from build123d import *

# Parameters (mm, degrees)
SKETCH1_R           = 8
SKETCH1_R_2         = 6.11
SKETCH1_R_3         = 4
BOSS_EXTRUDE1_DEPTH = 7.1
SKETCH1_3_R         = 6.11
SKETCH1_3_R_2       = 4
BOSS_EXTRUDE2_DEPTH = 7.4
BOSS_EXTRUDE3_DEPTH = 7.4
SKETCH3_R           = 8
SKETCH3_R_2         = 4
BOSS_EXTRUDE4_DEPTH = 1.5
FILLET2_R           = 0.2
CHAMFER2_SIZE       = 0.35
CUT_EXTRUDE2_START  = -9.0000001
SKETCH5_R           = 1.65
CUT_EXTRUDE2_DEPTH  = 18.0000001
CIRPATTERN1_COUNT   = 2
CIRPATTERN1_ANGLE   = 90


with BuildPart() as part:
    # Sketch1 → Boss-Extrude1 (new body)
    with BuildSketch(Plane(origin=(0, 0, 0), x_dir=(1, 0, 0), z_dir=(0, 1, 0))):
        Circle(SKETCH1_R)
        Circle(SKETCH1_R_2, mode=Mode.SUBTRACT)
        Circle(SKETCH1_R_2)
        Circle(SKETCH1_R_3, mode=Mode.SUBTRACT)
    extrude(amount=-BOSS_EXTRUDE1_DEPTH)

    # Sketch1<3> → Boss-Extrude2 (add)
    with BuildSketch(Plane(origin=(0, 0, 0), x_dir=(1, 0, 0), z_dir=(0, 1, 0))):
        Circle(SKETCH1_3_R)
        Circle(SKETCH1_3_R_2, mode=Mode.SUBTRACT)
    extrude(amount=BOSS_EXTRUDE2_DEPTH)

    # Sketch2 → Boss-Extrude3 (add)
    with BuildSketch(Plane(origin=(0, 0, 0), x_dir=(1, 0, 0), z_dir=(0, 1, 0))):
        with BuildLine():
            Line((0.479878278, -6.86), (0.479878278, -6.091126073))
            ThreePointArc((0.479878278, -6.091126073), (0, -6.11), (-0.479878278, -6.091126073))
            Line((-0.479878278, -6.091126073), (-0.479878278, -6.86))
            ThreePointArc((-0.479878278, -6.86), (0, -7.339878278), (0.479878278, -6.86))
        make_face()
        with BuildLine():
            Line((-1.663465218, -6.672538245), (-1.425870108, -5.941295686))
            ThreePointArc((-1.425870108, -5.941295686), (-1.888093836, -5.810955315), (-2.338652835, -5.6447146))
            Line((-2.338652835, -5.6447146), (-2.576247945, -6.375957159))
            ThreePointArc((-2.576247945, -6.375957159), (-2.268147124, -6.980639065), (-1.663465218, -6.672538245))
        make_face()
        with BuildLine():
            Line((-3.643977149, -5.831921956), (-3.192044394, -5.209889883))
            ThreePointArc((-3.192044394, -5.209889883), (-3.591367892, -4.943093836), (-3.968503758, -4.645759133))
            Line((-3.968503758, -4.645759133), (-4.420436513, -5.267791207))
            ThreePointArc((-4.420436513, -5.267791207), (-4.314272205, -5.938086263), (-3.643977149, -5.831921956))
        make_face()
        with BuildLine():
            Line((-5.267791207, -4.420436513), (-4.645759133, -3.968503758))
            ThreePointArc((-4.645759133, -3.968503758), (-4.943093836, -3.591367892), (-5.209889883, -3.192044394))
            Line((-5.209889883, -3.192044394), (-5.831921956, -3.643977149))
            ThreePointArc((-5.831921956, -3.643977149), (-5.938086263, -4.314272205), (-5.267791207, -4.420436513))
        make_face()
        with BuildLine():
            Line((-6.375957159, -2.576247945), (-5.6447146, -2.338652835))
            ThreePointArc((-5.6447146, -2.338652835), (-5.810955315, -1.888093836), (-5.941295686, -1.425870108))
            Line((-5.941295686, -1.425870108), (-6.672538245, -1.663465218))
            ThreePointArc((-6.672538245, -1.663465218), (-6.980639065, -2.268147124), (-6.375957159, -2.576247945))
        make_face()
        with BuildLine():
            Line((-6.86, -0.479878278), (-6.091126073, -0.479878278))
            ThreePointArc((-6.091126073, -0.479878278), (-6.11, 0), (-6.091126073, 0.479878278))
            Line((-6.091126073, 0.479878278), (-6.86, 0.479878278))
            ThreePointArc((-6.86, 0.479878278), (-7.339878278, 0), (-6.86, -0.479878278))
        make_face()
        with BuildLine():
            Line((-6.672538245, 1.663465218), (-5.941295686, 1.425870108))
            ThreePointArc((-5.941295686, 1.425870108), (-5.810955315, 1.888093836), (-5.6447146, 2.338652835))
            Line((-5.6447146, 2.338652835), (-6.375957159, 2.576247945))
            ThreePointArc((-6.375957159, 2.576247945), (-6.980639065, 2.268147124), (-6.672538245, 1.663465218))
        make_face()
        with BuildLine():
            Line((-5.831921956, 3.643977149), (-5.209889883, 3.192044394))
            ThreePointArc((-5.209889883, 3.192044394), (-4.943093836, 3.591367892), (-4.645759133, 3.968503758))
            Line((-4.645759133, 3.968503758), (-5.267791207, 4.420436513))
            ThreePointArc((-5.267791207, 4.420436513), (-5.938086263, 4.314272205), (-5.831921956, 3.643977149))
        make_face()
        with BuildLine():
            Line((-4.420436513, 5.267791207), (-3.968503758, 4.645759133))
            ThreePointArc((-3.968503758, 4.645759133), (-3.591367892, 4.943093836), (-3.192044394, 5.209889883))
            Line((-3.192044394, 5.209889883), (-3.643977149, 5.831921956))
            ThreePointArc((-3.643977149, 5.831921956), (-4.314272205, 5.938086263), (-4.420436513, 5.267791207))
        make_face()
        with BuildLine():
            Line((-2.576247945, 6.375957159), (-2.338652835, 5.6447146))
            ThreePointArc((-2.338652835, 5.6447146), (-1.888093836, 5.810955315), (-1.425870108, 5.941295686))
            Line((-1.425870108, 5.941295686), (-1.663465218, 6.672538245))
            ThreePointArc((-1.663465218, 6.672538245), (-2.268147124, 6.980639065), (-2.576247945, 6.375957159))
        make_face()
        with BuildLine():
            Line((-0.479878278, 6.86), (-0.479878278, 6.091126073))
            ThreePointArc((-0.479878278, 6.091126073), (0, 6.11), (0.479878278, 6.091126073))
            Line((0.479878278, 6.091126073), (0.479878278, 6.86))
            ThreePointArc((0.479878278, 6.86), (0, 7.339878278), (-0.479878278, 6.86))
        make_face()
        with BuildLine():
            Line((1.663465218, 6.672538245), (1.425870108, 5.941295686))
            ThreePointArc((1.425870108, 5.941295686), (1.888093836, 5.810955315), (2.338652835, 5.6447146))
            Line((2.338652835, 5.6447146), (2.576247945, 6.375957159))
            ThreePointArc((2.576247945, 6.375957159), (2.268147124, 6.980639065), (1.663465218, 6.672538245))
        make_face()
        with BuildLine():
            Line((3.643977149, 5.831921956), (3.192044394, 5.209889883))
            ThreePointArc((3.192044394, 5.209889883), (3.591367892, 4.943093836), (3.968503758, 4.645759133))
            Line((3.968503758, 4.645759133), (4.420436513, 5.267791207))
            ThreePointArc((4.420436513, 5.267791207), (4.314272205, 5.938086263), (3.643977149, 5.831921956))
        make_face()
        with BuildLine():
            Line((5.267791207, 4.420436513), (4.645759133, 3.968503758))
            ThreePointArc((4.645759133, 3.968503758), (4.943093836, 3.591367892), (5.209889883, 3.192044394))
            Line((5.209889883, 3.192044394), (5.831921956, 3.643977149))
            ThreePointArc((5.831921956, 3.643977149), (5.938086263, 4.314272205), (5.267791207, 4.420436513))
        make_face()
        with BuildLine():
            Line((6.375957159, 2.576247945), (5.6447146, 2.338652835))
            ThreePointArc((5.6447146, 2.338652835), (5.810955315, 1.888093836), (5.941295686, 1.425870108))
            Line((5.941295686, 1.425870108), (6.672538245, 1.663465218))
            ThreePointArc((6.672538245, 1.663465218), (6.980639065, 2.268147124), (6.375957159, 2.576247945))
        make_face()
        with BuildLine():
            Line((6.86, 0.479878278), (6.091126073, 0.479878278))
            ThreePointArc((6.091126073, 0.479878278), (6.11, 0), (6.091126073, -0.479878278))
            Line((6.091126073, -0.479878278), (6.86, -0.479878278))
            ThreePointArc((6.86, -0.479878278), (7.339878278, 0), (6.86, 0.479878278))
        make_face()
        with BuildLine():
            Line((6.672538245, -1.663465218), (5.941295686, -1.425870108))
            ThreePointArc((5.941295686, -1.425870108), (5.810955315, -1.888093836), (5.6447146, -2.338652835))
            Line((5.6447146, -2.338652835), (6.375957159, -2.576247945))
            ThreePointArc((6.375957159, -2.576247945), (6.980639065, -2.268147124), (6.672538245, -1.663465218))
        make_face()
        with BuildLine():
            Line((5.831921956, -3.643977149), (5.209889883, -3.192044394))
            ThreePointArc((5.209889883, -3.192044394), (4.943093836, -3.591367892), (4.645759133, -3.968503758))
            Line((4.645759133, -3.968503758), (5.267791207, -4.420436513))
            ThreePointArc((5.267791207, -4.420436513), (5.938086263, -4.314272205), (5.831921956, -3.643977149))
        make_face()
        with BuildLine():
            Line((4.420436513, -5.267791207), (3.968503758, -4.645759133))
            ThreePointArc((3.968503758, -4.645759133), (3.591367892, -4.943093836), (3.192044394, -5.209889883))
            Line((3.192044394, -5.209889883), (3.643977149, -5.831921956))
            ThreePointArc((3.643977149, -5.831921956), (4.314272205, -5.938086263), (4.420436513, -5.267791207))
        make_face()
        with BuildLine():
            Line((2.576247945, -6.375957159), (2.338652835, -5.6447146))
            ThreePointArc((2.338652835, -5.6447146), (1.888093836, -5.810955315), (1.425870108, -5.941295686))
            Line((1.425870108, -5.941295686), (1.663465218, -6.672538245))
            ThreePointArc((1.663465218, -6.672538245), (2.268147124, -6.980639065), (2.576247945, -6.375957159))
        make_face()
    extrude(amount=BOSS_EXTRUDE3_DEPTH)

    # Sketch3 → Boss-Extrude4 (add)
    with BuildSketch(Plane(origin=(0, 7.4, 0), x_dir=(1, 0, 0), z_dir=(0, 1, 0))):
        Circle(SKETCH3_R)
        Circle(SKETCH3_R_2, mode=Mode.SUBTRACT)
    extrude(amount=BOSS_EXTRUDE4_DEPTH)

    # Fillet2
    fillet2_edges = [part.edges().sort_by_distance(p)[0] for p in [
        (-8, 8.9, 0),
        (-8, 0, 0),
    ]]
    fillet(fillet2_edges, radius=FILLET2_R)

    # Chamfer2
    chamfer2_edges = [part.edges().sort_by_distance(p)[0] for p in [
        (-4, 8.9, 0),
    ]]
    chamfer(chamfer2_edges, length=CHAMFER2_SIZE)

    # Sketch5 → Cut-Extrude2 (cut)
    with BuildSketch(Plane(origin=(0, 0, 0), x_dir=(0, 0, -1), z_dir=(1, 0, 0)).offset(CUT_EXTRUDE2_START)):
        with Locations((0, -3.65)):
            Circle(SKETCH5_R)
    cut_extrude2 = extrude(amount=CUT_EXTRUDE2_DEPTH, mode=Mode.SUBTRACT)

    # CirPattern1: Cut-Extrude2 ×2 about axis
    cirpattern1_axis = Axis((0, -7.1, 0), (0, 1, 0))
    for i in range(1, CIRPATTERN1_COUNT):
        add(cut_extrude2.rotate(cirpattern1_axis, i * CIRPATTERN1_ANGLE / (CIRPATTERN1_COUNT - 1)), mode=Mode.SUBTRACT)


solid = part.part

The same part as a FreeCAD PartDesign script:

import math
import FreeCAD as App
import Part
import Sketcher

V = App.Vector
Q = App.Units.Quantity


def edges_at(feature, points):
    """Names of the edges that pass closest to the given points."""
    edges = feature.Shape.Edges
    near = lambda p: min(range(len(edges)), key=lambda i: edges[i].distToShape(Part.Vertex(*p))[0])
    return sorted({f"Edge{near(p) + 1}" for p in points})

doc = App.newDocument("Part")
params = doc.addObject("Spreadsheet::Sheet", "Params")
for row, (alias, value) in enumerate([
    ("sketch1_diameter", "16 mm"),
    ("sketch1_diameter2", "8 mm"),
    ("pad1_length", "7.1 mm"),
    ("sketch2_diameter", "8 mm"),
    ("sketch2_diameter2", "12.22 mm"),
    ("pad2_length", "7.4 mm"),
    ("sketch3_radius", "6.11 mm"),
    ("pad3_length", "7.4 mm"),
    ("sketch4_diameter", "16 mm"),
    ("sketch4_diameter2", "8 mm"),
    ("pad4_length", "1.5 mm"),
    ("fillet_radius", "0.2 mm"),
    ("chamfer_size", "0.35 mm"),
    ("sketch5_diameter", "3.3 mm"),
    ("pocket1_length", "18 mm"),
], start=1):
    params.set(f"A{row}", alias)
    params.set(f"B{row}", "=" + value)
    params.setAlias(f"B{row}", alias)

body = doc.addObject("PartDesign::Body", "Body")

sketch1 = body.newObject("Sketcher::SketchObject", "Sketch")
sketch1.AttachmentSupport = (doc.getObject("XZ_Plane"), [""])
sketch1.MapMode = "FlatFace"
sketch1.addGeometry([
    Part.Circle(V(0, 0, 0), V(0, 0, 1), 8),
    Part.Circle(V(0, 0, 0), V(0, 0, 1), 4),
], False)
sketch1.addConstraint([
    Sketcher.Constraint("Coincident", 0, 3, -1, 1),
    Sketcher.Constraint("Coincident", 1, 3, -1, 1),
    Sketcher.Constraint("Diameter", 0, 16.0),
    Sketcher.Constraint("Diameter", 1, 8.0),
])
sketch1.setExpression("Constraints[2]", "Params.sketch1_diameter")
sketch1.setExpression("Constraints[3]", "Params.sketch1_diameter2")
pad1 = body.newObject("PartDesign::Pad", "Pad")
pad1.Profile = sketch1
pad1.setExpression("Length", "Params.pad1_length")

sketch2 = body.newObject("Sketcher::SketchObject", "Sketch001")
sketch2.AttachmentSupport = (doc.getObject("XZ_Plane"), [""])
sketch2.MapMode = "FlatFace"
sketch2.addGeometry([
    Part.Circle(V(0, 0, 0), V(0, 0, 1), 6.1),
    Part.Circle(V(0, 0, 0), V(0, 0, 1), 4),
], False)
sketch2.addConstraint([
    Sketcher.Constraint("Coincident", 0, 3, -1, 1),
    Sketcher.Constraint("Coincident", 1, 3, -1, 1),
    Sketcher.Constraint("Diameter", 1, 8.0),
    Sketcher.Constraint("Diameter", 0, 12.22),
])
sketch2.setExpression("Constraints[2]", "Params.sketch2_diameter")
sketch2.setExpression("Constraints[3]", "Params.sketch2_diameter2")
pad2 = body.newObject("PartDesign::Pad", "Pad001")
pad2.Profile = sketch2
pad2.setExpression("Length", "Params.pad2_length")
pad2.Reversed = True

sketch3 = body.newObject("Sketcher::SketchObject", "Sketch002")
sketch3.AttachmentSupport = (doc.getObject("XZ_Plane"), [""])
sketch3.MapMode = "FlatFace"
sketch3.addGeometry([
    Part.LineSegment(V(0.48, 6.86, 0), V(0.48, 6.09, 0)),
    Part.ArcOfCircle(Part.Circle(V(0, 0, 0), V(0, 0, 1), 6.11), math.radians(85.5), math.radians(94.5)),
    Part.LineSegment(V(-0.48, 6.09, 0), V(-0.48, 6.86, 0)),
    Part.ArcOfCircle(Part.Circle(V(0, 6.86, 0), V(0, 0, 1), 0.48), math.radians(0), math.radians(180)),
    Part.LineSegment(V(-1.66, 6.67, 0), V(-1.43, 5.94, 0)),
    Part.ArcOfCircle(Part.Circle(V(0, 0, 0), V(0, 0, 1), 6.11), math.radians(103.5), math.radians(112.5)),
    Part.LineSegment(V(-2.34, 5.64, 0), V(-2.58, 6.38, 0)),
    Part.ArcOfCircle(Part.Circle(V(-2.12, 6.52, 0), V(0, 0, 1), 0.48), math.radians(18), math.radians(198)),
    Part.LineSegment(V(-3.64, 5.83, 0), V(-3.19, 5.21, 0)),
    Part.ArcOfCircle(Part.Circle(V(0, 0, 0), V(0, 0, 1), 6.11), math.radians(121.5), math.radians(130.5)),
    Part.LineSegment(V(-3.97, 4.65, 0), V(-4.42, 5.27, 0)),
    Part.ArcOfCircle(Part.Circle(V(-4.03, 5.55, 0), V(0, 0, 1), 0.48), math.radians(36), math.radians(216)),
    Part.LineSegment(V(-5.27, 4.42, 0), V(-4.65, 3.97, 0)),
    Part.ArcOfCircle(Part.Circle(V(0, 0, 0), V(0, 0, 1), 6.11), math.radians(139.5), math.radians(148.5)),
    Part.LineSegment(V(-5.21, 3.19, 0), V(-5.83, 3.64, 0)),
    Part.ArcOfCircle(Part.Circle(V(-5.55, 4.03, 0), V(0, 0, 1), 0.48), math.radians(54), math.radians(234)),
    Part.LineSegment(V(-6.38, 2.58, 0), V(-5.64, 2.34, 0)),
    Part.ArcOfCircle(Part.Circle(V(0, 0, 0), V(0, 0, 1), 6.11), math.radians(157.5), math.radians(166.5)),
    Part.LineSegment(V(-5.94, 1.43, 0), V(-6.67, 1.66, 0)),
    Part.ArcOfCircle(Part.Circle(V(-6.52, 2.12, 0), V(0, 0, 1), 0.48), math.radians(72), math.radians(252)),
    Part.LineSegment(V(-6.86, 0.48, 0), V(-6.09, 0.48, 0)),
    Part.ArcOfCircle(Part.Circle(V(0, 0, 0), V(0, 0, 1), 6.11), math.radians(175.5), math.radians(184.5)),
    Part.LineSegment(V(-6.09, -0.48, 0), V(-6.86, -0.48, 0)),
    Part.ArcOfCircle(Part.Circle(V(-6.86, 0, 0), V(0, 0, 1), 0.48), math.radians(90), math.radians(270)),
    Part.LineSegment(V(-6.67, -1.66, 0), V(-5.94, -1.43, 0)),
    Part.ArcOfCircle(Part.Circle(V(0, 0, 0), V(0, 0, 1), 6.11), math.radians(-166.5), math.radians(-157.5)),
    Part.LineSegment(V(-5.64, -2.34, 0), V(-6.38, -2.58, 0)),
    Part.ArcOfCircle(Part.Circle(V(-6.52, -2.12, 0), V(0, 0, 1), 0.48), math.radians(108), math.radians(288)),
    Part.LineSegment(V(-5.83, -3.64, 0), V(-5.21, -3.19, 0)),
    Part.ArcOfCircle(Part.Circle(V(0, 0, 0), V(0, 0, 1), 6.11), math.radians(-148.5), math.radians(-139.5)),
    Part.LineSegment(V(-4.65, -3.97, 0), V(-5.27, -4.42, 0)),
    Part.ArcOfCircle(Part.Circle(V(-5.55, -4.03, 0), V(0, 0, 1), 0.48), math.radians(126), math.radians(306)),
    Part.LineSegment(V(-4.42, -5.27, 0), V(-3.97, -4.65, 0)),
    Part.ArcOfCircle(Part.Circle(V(0, 0, 0), V(0, 0, 1), 6.11), math.radians(-130.5), math.radians(-121.5)),
    Part.LineSegment(V(-3.19, -5.21, 0), V(-3.64, -5.83, 0)),
    Part.ArcOfCircle(Part.Circle(V(-4.03, -5.55, 0), V(0, 0, 1), 0.48), math.radians(144), math.radians(324)),
    Part.LineSegment(V(-2.58, -6.38, 0), V(-2.34, -5.64, 0)),
    Part.ArcOfCircle(Part.Circle(V(0, 0, 0), V(0, 0, 1), 6.11), math.radians(-112.5), math.radians(-103.5)),
    Part.LineSegment(V(-1.43, -5.94, 0), V(-1.66, -6.67, 0)),
    Part.ArcOfCircle(Part.Circle(V(-2.12, -6.52, 0), V(0, 0, 1), 0.48), math.radians(162), math.radians(342)),
    Part.LineSegment(V(-0.48, -6.86, 0), V(-0.48, -6.09, 0)),
    Part.ArcOfCircle(Part.Circle(V(0, 0, 0), V(0, 0, 1), 6.11), math.radians(-94.5), math.radians(-85.5)),
    Part.LineSegment(V(0.48, -6.09, 0), V(0.48, -6.86, 0)),
    Part.ArcOfCircle(Part.Circle(V(0, -6.86, 0), V(0, 0, 1), 0.48), math.radians(180), math.radians(360)),
    Part.LineSegment(V(1.66, -6.67, 0), V(1.43, -5.94, 0)),
    Part.ArcOfCircle(Part.Circle(V(0, 0, 0), V(0, 0, 1), 6.11), math.radians(-76.5), math.radians(-67.5)),
    Part.LineSegment(V(2.34, -5.64, 0), V(2.58, -6.38, 0)),
    Part.ArcOfCircle(Part.Circle(V(2.12, -6.52, 0), V(0, 0, 1), 0.48), math.radians(-162), math.radians(18)),
    Part.LineSegment(V(3.64, -5.83, 0), V(3.19, -5.21, 0)),
    Part.ArcOfCircle(Part.Circle(V(0, 0, 0), V(0, 0, 1), 6.11), math.radians(-58.5), math.radians(-49.5)),
    Part.LineSegment(V(3.97, -4.65, 0), V(4.42, -5.27, 0)),
    Part.ArcOfCircle(Part.Circle(V(4.03, -5.55, 0), V(0, 0, 1), 0.48), math.radians(-144), math.radians(36)),
    Part.LineSegment(V(5.27, -4.42, 0), V(4.65, -3.97, 0)),
    Part.ArcOfCircle(Part.Circle(V(0, 0, 0), V(0, 0, 1), 6.11), math.radians(-40.5), math.radians(-31.5)),
    Part.LineSegment(V(5.21, -3.19, 0), V(5.83, -3.64, 0)),
    Part.ArcOfCircle(Part.Circle(V(5.55, -4.03, 0), V(0, 0, 1), 0.48), math.radians(-126), math.radians(54)),
    Part.LineSegment(V(6.38, -2.58, 0), V(5.64, -2.34, 0)),
    Part.ArcOfCircle(Part.Circle(V(0, 0, 0), V(0, 0, 1), 6.11), math.radians(-22.5), math.radians(-13.5)),
    Part.LineSegment(V(5.94, -1.43, 0), V(6.67, -1.66, 0)),
    Part.ArcOfCircle(Part.Circle(V(6.52, -2.12, 0), V(0, 0, 1), 0.48), math.radians(-108), math.radians(72)),
    Part.LineSegment(V(6.86, -0.48, 0), V(6.09, -0.48, 0)),
    Part.ArcOfCircle(Part.Circle(V(0, 0, 0), V(0, 0, 1), 6.11), math.radians(-4.5), math.radians(4.5)),
    Part.LineSegment(V(6.09, 0.48, 0), V(6.86, 0.48, 0)),
    Part.ArcOfCircle(Part.Circle(V(6.86, 0, 0), V(0, 0, 1), 0.48), math.radians(-90), math.radians(90)),
    Part.LineSegment(V(6.67, 1.66, 0), V(5.94, 1.43, 0)),
    Part.ArcOfCircle(Part.Circle(V(0, 0, 0), V(0, 0, 1), 6.11), math.radians(13.5), math.radians(22.5)),
    Part.LineSegment(V(5.64, 2.34, 0), V(6.38, 2.58, 0)),
    Part.ArcOfCircle(Part.Circle(V(6.52, 2.12, 0), V(0, 0, 1), 0.48), math.radians(-72), math.radians(108)),
    Part.LineSegment(V(5.83, 3.64, 0), V(5.21, 3.19, 0)),
    Part.ArcOfCircle(Part.Circle(V(0, 0, 0), V(0, 0, 1), 6.11), math.radians(31.5), math.radians(40.5)),
    Part.LineSegment(V(4.65, 3.97, 0), V(5.27, 4.42, 0)),
    Part.ArcOfCircle(Part.Circle(V(5.55, 4.03, 0), V(0, 0, 1), 0.48), math.radians(-54), math.radians(126)),
    Part.LineSegment(V(4.42, 5.27, 0), V(3.97, 4.65, 0)),
    Part.ArcOfCircle(Part.Circle(V(0, 0, 0), V(0, 0, 1), 6.11), math.radians(49.5), math.radians(58.5)),
    Part.LineSegment(V(3.19, 5.21, 0), V(3.64, 5.83, 0)),
    Part.ArcOfCircle(Part.Circle(V(4.03, 5.55, 0), V(0, 0, 1), 0.48), math.radians(-36), math.radians(144)),
    Part.LineSegment(V(2.58, 6.38, 0), V(2.34, 5.64, 0)),
    Part.ArcOfCircle(Part.Circle(V(0, 0, 0), V(0, 0, 1), 6.11), math.radians(67.5), math.radians(76.5)),
    Part.LineSegment(V(1.43, 5.94, 0), V(1.66, 6.67, 0)),
    Part.ArcOfCircle(Part.Circle(V(2.12, 6.52, 0), V(0, 0, 1), 0.48), math.radians(-18), math.radians(162)),
], False)
sketch3.addConstraint([
    Sketcher.Constraint("Coincident", 0, 2, 1, 1),
    Sketcher.Constraint("Coincident", 1, 2, 2, 1),
    Sketcher.Constraint("Tangent", 2, 2, 3, 2),
    Sketcher.Constraint("Tangent", 3, 1, 0, 1),
    Sketcher.Constraint("Coincident", 4, 2, 5, 1),
    Sketcher.Constraint("Coincident", 5, 2, 6, 1),
    Sketcher.Constraint("Tangent", 6, 2, 7, 2),
    Sketcher.Constraint("Tangent", 7, 1, 4, 1),
    Sketcher.Constraint("Coincident", 8, 2, 9, 1),
    Sketcher.Constraint("Coincident", 9, 2, 10, 1),
    Sketcher.Constraint("Tangent", 10, 2, 11, 2),
    Sketcher.Constraint("Tangent", 11, 1, 8, 1),
    Sketcher.Constraint("Coincident", 12, 2, 13, 1),
    Sketcher.Constraint("Coincident", 13, 2, 14, 1),
    Sketcher.Constraint("Tangent", 14, 2, 15, 2),
    Sketcher.Constraint("Tangent", 15, 1, 12, 1),
    Sketcher.Constraint("Coincident", 16, 2, 17, 1),
    Sketcher.Constraint("Coincident", 17, 2, 18, 1),
    Sketcher.Constraint("Tangent", 18, 2, 19, 2),
    Sketcher.Constraint("Tangent", 19, 1, 16, 1),
    Sketcher.Constraint("Coincident", 20, 2, 21, 1),
    Sketcher.Constraint("Coincident", 21, 2, 22, 1),
    Sketcher.Constraint("Tangent", 22, 2, 23, 2),
    Sketcher.Constraint("Tangent", 23, 1, 20, 1),
    Sketcher.Constraint("Coincident", 24, 2, 25, 1),
    Sketcher.Constraint("Coincident", 25, 2, 26, 1),
    Sketcher.Constraint("Tangent", 26, 2, 27, 2),
    Sketcher.Constraint("Tangent", 27, 1, 24, 1),
    Sketcher.Constraint("Coincident", 28, 2, 29, 1),
    Sketcher.Constraint("Coincident", 29, 2, 30, 1),
    Sketcher.Constraint("Tangent", 30, 2, 31, 2),
    Sketcher.Constraint("Tangent", 31, 1, 28, 1),
    Sketcher.Constraint("Coincident", 32, 2, 33, 1),
    Sketcher.Constraint("Coincident", 33, 2, 34, 1),
    Sketcher.Constraint("Tangent", 34, 2, 35, 2),
    Sketcher.Constraint("Tangent", 35, 1, 32, 1),
    Sketcher.Constraint("Coincident", 36, 2, 37, 1),
    Sketcher.Constraint("Coincident", 37, 2, 38, 1),
    Sketcher.Constraint("Tangent", 38, 2, 39, 2),
    Sketcher.Constraint("Tangent", 39, 1, 36, 1),
    Sketcher.Constraint("Coincident", 40, 2, 41, 1),
    Sketcher.Constraint("Coincident", 41, 2, 42, 1),
    Sketcher.Constraint("Tangent", 42, 2, 43, 2),
    Sketcher.Constraint("Tangent", 43, 1, 40, 1),
    Sketcher.Constraint("Coincident", 44, 2, 45, 1),
    Sketcher.Constraint("Coincident", 45, 2, 46, 1),
    Sketcher.Constraint("Tangent", 46, 2, 47, 2),
    Sketcher.Constraint("Tangent", 47, 1, 44, 1),
    Sketcher.Constraint("Coincident", 48, 2, 49, 1),
    Sketcher.Constraint("Coincident", 49, 2, 50, 1),
    Sketcher.Constraint("Tangent", 50, 2, 51, 2),
    Sketcher.Constraint("Tangent", 51, 1, 48, 1),
    Sketcher.Constraint("Coincident", 52, 2, 53, 1),
    Sketcher.Constraint("Coincident", 53, 2, 54, 1),
    Sketcher.Constraint("Tangent", 54, 2, 55, 2),
    Sketcher.Constraint("Tangent", 55, 1, 52, 1),
    Sketcher.Constraint("Coincident", 56, 2, 57, 1),
    Sketcher.Constraint("Coincident", 57, 2, 58, 1),
    Sketcher.Constraint("Tangent", 58, 2, 59, 2),
    Sketcher.Constraint("Tangent", 59, 1, 56, 1),
    Sketcher.Constraint("Coincident", 60, 2, 61, 1),
    Sketcher.Constraint("Coincident", 61, 2, 62, 1),
    Sketcher.Constraint("Tangent", 62, 2, 63, 2),
    Sketcher.Constraint("Tangent", 63, 1, 60, 1),
    Sketcher.Constraint("Coincident", 64, 2, 65, 1),
    Sketcher.Constraint("Coincident", 65, 2, 66, 1),
    Sketcher.Constraint("Tangent", 66, 2, 67, 2),
    Sketcher.Constraint("Tangent", 67, 1, 64, 1),
    Sketcher.Constraint("Coincident", 68, 2, 69, 1),
    Sketcher.Constraint("Coincident", 69, 2, 70, 1),
    Sketcher.Constraint("Tangent", 70, 2, 71, 2),
    Sketcher.Constraint("Tangent", 71, 1, 68, 1),
    Sketcher.Constraint("Coincident", 72, 2, 73, 1),
    Sketcher.Constraint("Coincident", 73, 2, 74, 1),
    Sketcher.Constraint("Tangent", 74, 2, 75, 2),
    Sketcher.Constraint("Tangent", 75, 1, 72, 1),
    Sketcher.Constraint("Coincident", 76, 2, 77, 1),
    Sketcher.Constraint("Coincident", 77, 2, 78, 1),
    Sketcher.Constraint("Tangent", 78, 2, 79, 2),
    Sketcher.Constraint("Tangent", 79, 1, 76, 1),
    Sketcher.Constraint("Vertical", 0),
    Sketcher.Constraint("Vertical", 2),
    Sketcher.Constraint("Horizontal", 20),
    Sketcher.Constraint("Horizontal", 22),
    Sketcher.Constraint("Vertical", 40),
    Sketcher.Constraint("Vertical", 42),
    Sketcher.Constraint("Horizontal", 60),
    Sketcher.Constraint("Horizontal", 62),
    Sketcher.Constraint("Coincident", 1, 3, -1, 1),
    Sketcher.Constraint("Coincident", 5, 3, -1, 1),
    Sketcher.Constraint("Coincident", 9, 3, -1, 1),
    Sketcher.Constraint("Coincident", 13, 3, -1, 1),
    Sketcher.Constraint("Coincident", 17, 3, -1, 1),
    Sketcher.Constraint("Coincident", 21, 3, -1, 1),
    Sketcher.Constraint("Coincident", 25, 3, -1, 1),
    Sketcher.Constraint("Coincident", 29, 3, -1, 1),
    Sketcher.Constraint("Coincident", 33, 3, -1, 1),
    Sketcher.Constraint("Coincident", 37, 3, -1, 1),
    Sketcher.Constraint("Coincident", 41, 3, -1, 1),
    Sketcher.Constraint("Coincident", 45, 3, -1, 1),
    Sketcher.Constraint("Coincident", 49, 3, -1, 1),
    Sketcher.Constraint("Coincident", 53, 3, -1, 1),
    Sketcher.Constraint("Coincident", 57, 3, -1, 1),
    Sketcher.Constraint("Coincident", 61, 3, -1, 1),
    Sketcher.Constraint("Coincident", 65, 3, -1, 1),
    Sketcher.Constraint("Coincident", 69, 3, -1, 1),
    Sketcher.Constraint("Coincident", 73, 3, -1, 1),
    Sketcher.Constraint("Coincident", 77, 3, -1, 1),
    Sketcher.Constraint("Equal", 1, 5),
    Sketcher.Constraint("Equal", 3, 7),
    Sketcher.Constraint("Equal", 5, 9),
    Sketcher.Constraint("Equal", 7, 11),
    Sketcher.Constraint("Equal", 9, 13),
    Sketcher.Constraint("Equal", 11, 15),
    Sketcher.Constraint("Equal", 13, 17),
    Sketcher.Constraint("Equal", 15, 19),
    Sketcher.Constraint("Equal", 17, 21),
    Sketcher.Constraint("Equal", 19, 23),
    Sketcher.Constraint("Equal", 21, 25),
    Sketcher.Constraint("Equal", 23, 27),
    Sketcher.Constraint("Equal", 25, 29),
    Sketcher.Constraint("Equal", 27, 31),
    Sketcher.Constraint("Equal", 29, 33),
    Sketcher.Constraint("Equal", 31, 35),
    Sketcher.Constraint("Equal", 33, 37),
    Sketcher.Constraint("Equal", 35, 39),
    Sketcher.Constraint("Equal", 37, 41),
    Sketcher.Constraint("Equal", 39, 43),
    Sketcher.Constraint("Equal", 41, 45),
    Sketcher.Constraint("Equal", 43, 47),
    Sketcher.Constraint("Equal", 45, 49),
    Sketcher.Constraint("Equal", 47, 51),
    Sketcher.Constraint("Equal", 49, 53),
    Sketcher.Constraint("Equal", 51, 55),
    Sketcher.Constraint("Equal", 53, 57),
    Sketcher.Constraint("Equal", 55, 59),
    Sketcher.Constraint("Equal", 57, 61),
    Sketcher.Constraint("Equal", 59, 63),
    Sketcher.Constraint("Equal", 61, 65),
    Sketcher.Constraint("Equal", 63, 67),
    Sketcher.Constraint("Equal", 65, 69),
    Sketcher.Constraint("Equal", 67, 71),
    Sketcher.Constraint("Equal", 69, 73),
    Sketcher.Constraint("Equal", 71, 75),
    Sketcher.Constraint("Equal", 73, 77),
    Sketcher.Constraint("Equal", 75, 79),
    Sketcher.Constraint("Symmetric", 3, 3, 43, 3, -1, 1),
    Sketcher.Constraint("Symmetric", 7, 3, 47, 3, -1, 1),
    Sketcher.Constraint("Symmetric", 11, 3, 51, 3, -1, 1),
    Sketcher.Constraint("Symmetric", 15, 3, 55, 3, -1, 1),
    Sketcher.Constraint("Symmetric", 19, 3, 59, 3, -1, 1),
    Sketcher.Constraint("Symmetric", 23, 3, 63, 3, -1, 1),
    Sketcher.Constraint("Symmetric", 27, 3, 67, 3, -1, 1),
    Sketcher.Constraint("Symmetric", 31, 3, 71, 3, -1, 1),
    Sketcher.Constraint("Symmetric", 35, 3, 75, 3, -1, 1),
    Sketcher.Constraint("Symmetric", 39, 3, 79, 3, -1, 1),
    Sketcher.Constraint("Symmetric", 39, 3, 47, 3, -2),
    Sketcher.Constraint("Symmetric", 35, 3, 51, 3, -2),
    Sketcher.Constraint("Symmetric", 31, 3, 55, 3, -2),
    Sketcher.Constraint("Symmetric", 27, 3, 59, 3, -2),
    Sketcher.Constraint("PointOnObject", 3, 3, -2),
    Sketcher.Constraint("PointOnObject", 23, 3, -1),
    Sketcher.Constraint("Parallel", 4, 6),
    Sketcher.Constraint("Parallel", 8, 10),
    Sketcher.Constraint("Parallel", 12, 14),
    Sketcher.Constraint("Parallel", 16, 18),
    Sketcher.Constraint("Perpendicular", 6, 24),
    Sketcher.Constraint("Parallel", 24, 26),
    Sketcher.Constraint("Perpendicular", 10, 28),
    Sketcher.Constraint("Parallel", 28, 30),
    Sketcher.Constraint("Perpendicular", 14, 32),
    Sketcher.Constraint("Parallel", 32, 34),
    Sketcher.Constraint("Perpendicular", 18, 36),
    Sketcher.Constraint("Parallel", 36, 38),
    Sketcher.Constraint("Perpendicular", 26, 44),
    Sketcher.Constraint("Parallel", 44, 46),
    Sketcher.Constraint("Perpendicular", 30, 48),
    Sketcher.Constraint("Parallel", 48, 50),
    Sketcher.Constraint("Perpendicular", 34, 52),
    Sketcher.Constraint("Parallel", 52, 54),
    Sketcher.Constraint("Perpendicular", 38, 56),
    Sketcher.Constraint("Parallel", 56, 58),
    Sketcher.Constraint("Perpendicular", 46, 64),
    Sketcher.Constraint("Parallel", 64, 66),
    Sketcher.Constraint("Perpendicular", 50, 68),
    Sketcher.Constraint("Parallel", 68, 70),
    Sketcher.Constraint("Perpendicular", 54, 72),
    Sketcher.Constraint("Parallel", 72, 74),
    Sketcher.Constraint("Perpendicular", 58, 76),
    Sketcher.Constraint("Parallel", 76, 78),
    Sketcher.Constraint("Horizontal", 37, 2, 44, 2),
    Sketcher.Constraint("Horizontal", 33, 2, 48, 2),
    Sketcher.Constraint("Equal", 62, 0),
    Sketcher.Constraint("Equal", 4, 6),
    Sketcher.Constraint("Equal", 6, 8),
    Sketcher.Constraint("Equal", 8, 10),
    Sketcher.Constraint("Equal", 10, 12),
    Sketcher.Constraint("Equal", 12, 14),
    Sketcher.Constraint("Equal", 14, 16),
    Sketcher.Constraint("Equal", 16, 18),
    Sketcher.Constraint("Angle", 4, Q("-72 deg")),
    Sketcher.Constraint("Angle", 8, Q("-54 deg")),
    Sketcher.Constraint("Radius", 1, 6.11),
    Sketcher.Constraint("DistanceY", -1, 1, 3, 3, 6.86),
    Sketcher.Constraint("Radius", 3, 0.479878),
    Sketcher.Constraint("DistanceY", -1, 1, 7, 1, 6.672538),
])
sketch3.setExpression("Constraints[202]", "Params.sketch3_radius")
pad3 = body.newObject("PartDesign::Pad", "Pad002")
pad3.Profile = sketch3
pad3.setExpression("Length", "Params.pad3_length")
pad3.Reversed = True

sketch4 = body.newObject("Sketcher::SketchObject", "Sketch003")
sketch4.AttachmentSupport = (doc.getObject("XZ_Plane"), [""])
sketch4.MapMode = "FlatFace"
sketch4.AttachmentOffset = App.Placement(V(0, 0, -7.4), App.Rotation())
sketch4.addGeometry([
    Part.Circle(V(0, 0, 0), V(0, 0, 1), 8),
    Part.Circle(V(0, 0, 0), V(0, 0, 1), 4),
], False)
sketch4.addConstraint([
    Sketcher.Constraint("Coincident", 0, 3, -1, 1),
    Sketcher.Constraint("Coincident", 1, 3, -1, 1),
    Sketcher.Constraint("Diameter", 0, 16.0),
    Sketcher.Constraint("Diameter", 1, 8.0),
])
sketch4.setExpression("Constraints[2]", "Params.sketch4_diameter")
sketch4.setExpression("Constraints[3]", "Params.sketch4_diameter2")
pad4 = body.newObject("PartDesign::Pad", "Pad003")
pad4.Profile = sketch4
pad4.setExpression("Length", "Params.pad4_length")
pad4.Reversed = True
doc.recompute()

fillet = body.newObject("PartDesign::Fillet", "Fillet")
fillet.Base = (pad4, edges_at(pad4, [(-8, 8.9, 0), (-8, 0, 0)]))
fillet.setExpression("Radius", "Params.fillet_radius")
doc.recompute()

chamfer = body.newObject("PartDesign::Chamfer", "Chamfer")
chamfer.Base = (fillet, edges_at(fillet, [(-4, 8.9, 0)]))
chamfer.setExpression("Size", "Params.chamfer_size")

sketch5 = body.newObject("Sketcher::SketchObject", "Sketch004")
sketch5.AttachmentSupport = (doc.getObject("YZ_Plane"), [""])
sketch5.MapMode = "FlatFace"
sketch5.AttachmentOffset = App.Placement(V(0, 0, -9), App.Rotation())
sketch5.addGeometry(Part.Circle(V(-3.6, 0, 0), V(0, 0, 1), 1.6), False)
sketch5.addConstraint([
    Sketcher.Constraint("PointOnObject", 0, 3, -1),
    Sketcher.Constraint("Diameter", 0, 3.3),
    Sketcher.Constraint("DistanceX", 0, 3, -1, 1, 3.65),
])
sketch5.setExpression("Constraints[1]", "Params.sketch5_diameter")
pocket1 = body.newObject("PartDesign::Pocket", "Pocket")
pocket1.Profile = sketch5
pocket1.setExpression("Length", "Params.pocket1_length")
pocket1.Reversed = True
doc.recompute()

polarpattern = body.newObject("PartDesign::PolarPattern", "PolarPattern")
polarpattern.Originals = [pocket1]
polarpattern.Axis = (doc.getObject("Y_Axis"), [""])
polarpattern.Angle = 90
polarpattern.Occurrences = 2
body.Tip = polarpattern

doc.recompute()
